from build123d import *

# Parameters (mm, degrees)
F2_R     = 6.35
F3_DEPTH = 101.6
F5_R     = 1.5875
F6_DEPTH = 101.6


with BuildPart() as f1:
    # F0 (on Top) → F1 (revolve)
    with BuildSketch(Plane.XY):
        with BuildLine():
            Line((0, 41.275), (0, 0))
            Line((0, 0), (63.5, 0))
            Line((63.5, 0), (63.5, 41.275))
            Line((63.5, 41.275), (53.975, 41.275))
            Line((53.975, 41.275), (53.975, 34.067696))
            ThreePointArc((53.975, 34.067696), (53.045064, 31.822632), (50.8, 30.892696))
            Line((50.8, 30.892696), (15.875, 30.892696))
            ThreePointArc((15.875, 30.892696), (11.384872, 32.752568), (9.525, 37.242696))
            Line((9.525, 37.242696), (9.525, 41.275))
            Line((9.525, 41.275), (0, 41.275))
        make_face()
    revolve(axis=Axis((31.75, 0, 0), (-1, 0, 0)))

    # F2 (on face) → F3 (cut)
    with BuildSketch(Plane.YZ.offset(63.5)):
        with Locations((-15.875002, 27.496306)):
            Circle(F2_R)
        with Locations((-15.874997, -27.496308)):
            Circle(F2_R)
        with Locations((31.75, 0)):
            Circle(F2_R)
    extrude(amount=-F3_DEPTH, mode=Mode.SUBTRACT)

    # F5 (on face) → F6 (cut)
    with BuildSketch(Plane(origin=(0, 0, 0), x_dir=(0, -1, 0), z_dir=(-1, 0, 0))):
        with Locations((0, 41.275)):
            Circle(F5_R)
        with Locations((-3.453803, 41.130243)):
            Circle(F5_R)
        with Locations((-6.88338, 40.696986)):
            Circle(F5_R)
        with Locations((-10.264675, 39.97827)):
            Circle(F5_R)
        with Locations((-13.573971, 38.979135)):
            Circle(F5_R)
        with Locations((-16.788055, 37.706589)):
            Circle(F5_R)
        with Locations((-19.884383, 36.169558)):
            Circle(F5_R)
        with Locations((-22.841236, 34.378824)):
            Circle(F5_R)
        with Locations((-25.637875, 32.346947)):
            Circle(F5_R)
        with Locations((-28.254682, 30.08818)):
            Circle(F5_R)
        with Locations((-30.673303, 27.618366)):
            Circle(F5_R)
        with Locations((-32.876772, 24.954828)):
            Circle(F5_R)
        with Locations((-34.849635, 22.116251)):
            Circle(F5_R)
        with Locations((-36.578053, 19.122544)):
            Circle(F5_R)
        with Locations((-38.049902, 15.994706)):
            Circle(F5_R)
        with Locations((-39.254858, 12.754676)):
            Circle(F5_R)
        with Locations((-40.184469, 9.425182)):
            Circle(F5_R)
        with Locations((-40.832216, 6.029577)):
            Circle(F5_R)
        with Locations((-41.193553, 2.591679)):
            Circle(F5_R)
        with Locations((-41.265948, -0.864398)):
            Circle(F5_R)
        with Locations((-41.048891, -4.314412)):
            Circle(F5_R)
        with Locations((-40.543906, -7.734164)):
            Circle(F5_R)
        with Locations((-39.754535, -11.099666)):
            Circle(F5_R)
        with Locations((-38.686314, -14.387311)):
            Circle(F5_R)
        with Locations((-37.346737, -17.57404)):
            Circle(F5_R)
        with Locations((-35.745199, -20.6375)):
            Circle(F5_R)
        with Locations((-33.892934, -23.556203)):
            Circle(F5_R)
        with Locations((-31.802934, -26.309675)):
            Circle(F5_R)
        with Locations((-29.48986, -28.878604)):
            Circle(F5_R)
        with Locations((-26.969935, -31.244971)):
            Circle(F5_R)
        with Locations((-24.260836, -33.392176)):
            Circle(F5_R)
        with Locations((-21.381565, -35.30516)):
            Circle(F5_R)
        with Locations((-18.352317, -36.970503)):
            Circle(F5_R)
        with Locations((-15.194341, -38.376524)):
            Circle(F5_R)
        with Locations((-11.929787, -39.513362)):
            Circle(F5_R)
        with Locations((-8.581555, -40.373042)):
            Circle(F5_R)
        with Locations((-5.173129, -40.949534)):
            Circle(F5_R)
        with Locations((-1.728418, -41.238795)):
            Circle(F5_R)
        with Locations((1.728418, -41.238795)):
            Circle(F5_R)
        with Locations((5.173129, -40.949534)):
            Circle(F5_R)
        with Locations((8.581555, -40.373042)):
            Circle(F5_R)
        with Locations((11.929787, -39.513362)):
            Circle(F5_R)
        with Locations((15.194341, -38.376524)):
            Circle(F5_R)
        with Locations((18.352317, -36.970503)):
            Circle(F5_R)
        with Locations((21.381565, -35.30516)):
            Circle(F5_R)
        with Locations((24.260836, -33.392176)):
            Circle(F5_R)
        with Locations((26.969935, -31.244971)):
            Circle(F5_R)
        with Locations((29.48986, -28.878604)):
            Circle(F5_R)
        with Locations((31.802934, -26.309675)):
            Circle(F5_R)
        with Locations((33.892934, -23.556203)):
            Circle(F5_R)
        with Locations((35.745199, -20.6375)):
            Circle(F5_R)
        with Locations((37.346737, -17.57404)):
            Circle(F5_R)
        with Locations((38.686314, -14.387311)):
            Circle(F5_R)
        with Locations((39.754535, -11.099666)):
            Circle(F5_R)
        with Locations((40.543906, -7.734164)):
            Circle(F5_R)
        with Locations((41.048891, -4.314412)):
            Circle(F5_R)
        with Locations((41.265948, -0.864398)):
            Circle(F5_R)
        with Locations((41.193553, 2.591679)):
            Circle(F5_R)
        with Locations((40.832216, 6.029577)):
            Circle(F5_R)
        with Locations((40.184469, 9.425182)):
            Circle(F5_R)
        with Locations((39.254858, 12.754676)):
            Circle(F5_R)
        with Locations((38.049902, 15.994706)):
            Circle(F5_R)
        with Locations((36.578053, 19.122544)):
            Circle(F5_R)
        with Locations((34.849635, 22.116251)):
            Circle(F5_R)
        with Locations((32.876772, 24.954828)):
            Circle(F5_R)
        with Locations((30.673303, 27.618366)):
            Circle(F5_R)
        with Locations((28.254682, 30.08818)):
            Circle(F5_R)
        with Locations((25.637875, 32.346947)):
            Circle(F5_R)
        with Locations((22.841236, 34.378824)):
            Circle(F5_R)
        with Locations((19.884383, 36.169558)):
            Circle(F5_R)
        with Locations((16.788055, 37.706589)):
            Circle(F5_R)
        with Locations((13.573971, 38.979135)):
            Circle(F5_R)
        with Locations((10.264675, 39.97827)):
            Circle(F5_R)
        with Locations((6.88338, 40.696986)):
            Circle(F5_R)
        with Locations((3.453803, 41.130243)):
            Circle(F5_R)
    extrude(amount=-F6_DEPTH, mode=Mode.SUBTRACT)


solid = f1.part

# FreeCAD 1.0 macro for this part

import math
import FreeCAD as App
import Part
import Sketcher

V = App.Vector
Q = App.Units.Quantity

doc = App.newDocument("Part")
body = doc.addObject("PartDesign::Body", "Body")

# Sketch on XY plane
sketch1 = body.newObject("Sketcher::SketchObject", "Sketch")
sketch1.AttachmentSupport = (doc.getObject("XY_Plane"), [""])
sketch1.MapMode = "FlatFace"
sketch1.addGeometry([
    Part.LineSegment(V(0, 41.275, 0), V(0, 0, 0)),  # 0
    Part.LineSegment(V(0, 0, 0), V(63.5, 0, 0)),  # 1
    Part.LineSegment(V(63.5, 0, 0), V(63.5, 41.275, 0)),  # 2
    Part.LineSegment(V(63.5, 41.275, 0), V(53.975, 41.275, 0)),  # 3
    Part.LineSegment(V(53.975, 41.275, 0), V(53.975, 34.067696, 0)),  # 4
    Part.ArcOfCircle(Part.Circle(V(50.8, 34.067696, 0), V(0, 0, 1), 3.175), math.radians(-89.999998), math.radians(-0.000002)),  # 5
    Part.LineSegment(V(50.8, 30.892696, 0), V(15.875, 30.892696, 0)),  # 6
    Part.ArcOfCircle(Part.Circle(V(15.875, 37.242696, 0), V(0, 0, 1), 6.35), math.radians(-179.999998), math.radians(-90.000002)),  # 7
    Part.LineSegment(V(9.525, 37.242696, 0), V(9.525, 41.275, 0)),  # 8
    Part.LineSegment(V(9.525, 41.275, 0), V(0, 41.275, 0)),  # 9
], False)
sketch1.addConstraint([
    Sketcher.Constraint("Coincident", 0, 2, 1, 1),
    Sketcher.Constraint("Coincident", 1, 2, 2, 1),
    Sketcher.Constraint("Coincident", 2, 2, 3, 1),
    Sketcher.Constraint("Coincident", 3, 2, 4, 1),
    Sketcher.Constraint("Tangent", 4, 2, 5, 2),
    Sketcher.Constraint("Tangent", 5, 1, 6, 1),
    Sketcher.Constraint("Tangent", 6, 2, 7, 2),
    Sketcher.Constraint("Tangent", 7, 1, 8, 1),
    Sketcher.Constraint("Coincident", 8, 2, 9, 1),
    Sketcher.Constraint("Coincident", 9, 2, 0, 1),
    Sketcher.Constraint("Vertical", 0),
    Sketcher.Constraint("Horizontal", 1),
    Sketcher.Constraint("Vertical", 2),
    Sketcher.Constraint("Horizontal", 3),
    Sketcher.Constraint("Vertical", 4),
    Sketcher.Constraint("Horizontal", 6),
    Sketcher.Constraint("Vertical", 8),
    Sketcher.Constraint("Horizontal", 9),
    Sketcher.Constraint("Coincident", 0, 2, -1, 1),
    Sketcher.Constraint("Horizontal", 3, 2, 8, 2),
    Sketcher.Constraint("Equal", 3, 9),
    Sketcher.Constraint("Radius", 7, Q("0.25 in")),
    Sketcher.Constraint("DistanceX", 1, 1, 1, 2, Q("2.5 in")),
    Sketcher.Constraint("DistanceX", -1, 1, 5, 3, Q("2 in")),
    Sketcher.Constraint("Radius", 5, Q("0.125 in")),
    Sketcher.Constraint("DistanceY", 0, 2, 0, 1, Q("1.625 in")),
    Sketcher.Constraint("DistanceY", 4, 2, 4, 1, 7.207304),
])
revolution = body.newObject("PartDesign::Revolution", "Revolution")
revolution.Profile = sketch1
revolution.ReferenceAxis = (sketch1, ["H_Axis"])
revolution.Angle = 360

# Sketch on YZ plane
sketch2 = body.newObject("Sketcher::SketchObject", "Sketch001")
sketch2.AttachmentSupport = (doc.getObject("YZ_Plane"), [""])
sketch2.MapMode = "FlatFace"
sketch2.AttachmentOffset = App.Placement(V(0, 0, 2.5 * 25.4), App.Rotation())
sketch2.addGeometry([
    Part.Circle(V(-15.875002, 27.496306, 0), V(0, 0, 1), 6.35),
    Part.Circle(V(-15.874997, -27.496308, 0), V(0, 0, 1), 6.35),
    Part.Circle(V(31.75, 0, 0), V(0, 0, 1), 6.35),
], False)
sketch2.addConstraint([
    Sketcher.Constraint("Equal", 0, 1),
    Sketcher.Constraint("Equal", 1, 2),
    Sketcher.Constraint("Symmetric", 0, 3, 1, 3, -1),
    Sketcher.Constraint("PointOnObject", 2, 3, -1),
    Sketcher.Constraint("Diameter", 0, Q("0.5 in")),
    Sketcher.Constraint("DistanceX", -1, 1, 2, 3, Q("1.25 in")),
    Sketcher.Constraint("DistanceX", 0, 3, -1, 1, Q("0.6250001 in")),
    Sketcher.Constraint("DistanceY", -1, 1, 0, 3, 27.496306),
])
pocket1 = body.newObject("PartDesign::Pocket", "Pocket")
pocket1.Profile = sketch2
pocket1.Length = Q("4 in")

# Sketch on YZ plane
sketch3 = body.newObject("Sketcher::SketchObject", "Sketch002")
sketch3.AttachmentSupport = (doc.getObject("YZ_Plane"), [""])
sketch3.MapMode = "FlatFace"
sketch3.addGeometry([
    Part.Circle(V(0, 41.275, 0), V(0, 0, 1), 1.5875),  # 0
    Part.Circle(V(3.453803, 41.130243, 0), V(0, 0, 1), 1.5875),  # 1
    Part.Circle(V(6.88338, 40.696986, 0), V(0, 0, 1), 1.5875),  # 2
    Part.Circle(V(10.264675, 39.97827, 0), V(0, 0, 1), 1.5875),  # 3
    Part.Circle(V(13.573971, 38.979135, 0), V(0, 0, 1), 1.5875),  # 4
    Part.Circle(V(16.788055, 37.706589, 0), V(0, 0, 1), 1.5875),  # 5
    Part.Circle(V(19.884383, 36.169558, 0), V(0, 0, 1), 1.5875),  # 6
    Part.Circle(V(22.841236, 34.378824, 0), V(0, 0, 1), 1.5875),  # 7
    Part.Circle(V(25.637875, 32.346947, 0), V(0, 0, 1), 1.5875),  # 8
    Part.Circle(V(28.254682, 30.08818, 0), V(0, 0, 1), 1.5875),  # 9
    Part.Circle(V(30.673303, 27.618366, 0), V(0, 0, 1), 1.5875),  # 10
    Part.Circle(V(32.876772, 24.954828, 0), V(0, 0, 1), 1.5875),  # 11
    Part.Circle(V(34.849635, 22.116251, 0), V(0, 0, 1), 1.5875),  # 12
    Part.Circle(V(36.578053, 19.122544, 0), V(0, 0, 1), 1.5875),  # 13
    Part.Circle(V(38.049902, 15.994706, 0), V(0, 0, 1), 1.5875),  # 14
    Part.Circle(V(39.254858, 12.754676, 0), V(0, 0, 1), 1.5875),  # 15
    Part.Circle(V(40.184469, 9.425182, 0), V(0, 0, 1), 1.5875),  # 16
    Part.Circle(V(40.832216, 6.029577, 0), V(0, 0, 1), 1.5875),  # 17
    Part.Circle(V(41.193553, 2.591679, 0), V(0, 0, 1), 1.5875),  # 18
    Part.Circle(V(41.265948, -0.864398, 0), V(0, 0, 1), 1.5875),  # 19
    Part.Circle(V(41.048891, -4.314412, 0), V(0, 0, 1), 1.5875),  # 20
    Part.Circle(V(40.543906, -7.734164, 0), V(0, 0, 1), 1.5875),  # 21
    Part.Circle(V(39.754535, -11.099666, 0), V(0, 0, 1), 1.5875),  # 22
    Part.Circle(V(38.686314, -14.387311, 0), V(0, 0, 1), 1.5875),  # 23
    Part.Circle(V(37.346737, -17.57404, 0), V(0, 0, 1), 1.5875),  # 24
    Part.Circle(V(35.745199, -20.6375, 0), V(0, 0, 1), 1.5875),  # 25
    Part.Circle(V(33.892934, -23.556203, 0), V(0, 0, 1), 1.5875),  # 26
    Part.Circle(V(31.802934, -26.309675, 0), V(0, 0, 1), 1.5875),  # 27
    Part.Circle(V(29.48986, -28.878604, 0), V(0, 0, 1), 1.5875),  # 28
    Part.Circle(V(26.969935, -31.244971, 0), V(0, 0, 1), 1.5875),  # 29
    Part.Circle(V(24.260836, -33.392176, 0), V(0, 0, 1), 1.5875),  # 30
    Part.Circle(V(21.381565, -35.30516, 0), V(0, 0, 1), 1.5875),  # 31
    Part.Circle(V(18.352317, -36.970503, 0), V(0, 0, 1), 1.5875),  # 32
    Part.Circle(V(15.194341, -38.376524, 0), V(0, 0, 1), 1.5875),  # 33
    Part.Circle(V(11.929787, -39.513362, 0), V(0, 0, 1), 1.5875),  # 34
    Part.Circle(V(8.581555, -40.373042, 0), V(0, 0, 1), 1.5875),  # 35
    Part.Circle(V(5.173129, -40.949534, 0), V(0, 0, 1), 1.5875),  # 36
    Part.Circle(V(1.728418, -41.238795, 0), V(0, 0, 1), 1.5875),  # 37
    Part.Circle(V(-1.728418, -41.238795, 0), V(0, 0, 1), 1.5875),  # 38
    Part.Circle(V(-5.173129, -40.949534, 0), V(0, 0, 1), 1.5875),  # 39
    Part.Circle(V(-8.581555, -40.373042, 0), V(0, 0, 1), 1.5875),  # 40
    Part.Circle(V(-11.929787, -39.513362, 0), V(0, 0, 1), 1.5875),  # 41
    Part.Circle(V(-15.194341, -38.376524, 0), V(0, 0, 1), 1.5875),  # 42
    Part.Circle(V(-18.352317, -36.970503, 0), V(0, 0, 1), 1.5875),  # 43
    Part.Circle(V(-21.381565, -35.30516, 0), V(0, 0, 1), 1.5875),  # 44
    Part.Circle(V(-24.260836, -33.392176, 0), V(0, 0, 1), 1.5875),  # 45
    Part.Circle(V(-26.969935, -31.244971, 0), V(0, 0, 1), 1.5875),  # 46
    Part.Circle(V(-29.48986, -28.878604, 0), V(0, 0, 1), 1.5875),  # 47
    Part.Circle(V(-31.802934, -26.309675, 0), V(0, 0, 1), 1.5875),  # 48
    Part.Circle(V(-33.892934, -23.556203, 0), V(0, 0, 1), 1.5875),  # 49
    Part.Circle(V(-35.745199, -20.6375, 0), V(0, 0, 1), 1.5875),  # 50
    Part.Circle(V(-37.346737, -17.57404, 0), V(0, 0, 1), 1.5875),  # 51
    Part.Circle(V(-38.686314, -14.387311, 0), V(0, 0, 1), 1.5875),  # 52
    Part.Circle(V(-39.754535, -11.099666, 0), V(0, 0, 1), 1.5875),  # 53
    Part.Circle(V(-40.543906, -7.734164, 0), V(0, 0, 1), 1.5875),  # 54
    Part.Circle(V(-41.048891, -4.314412, 0), V(0, 0, 1), 1.5875),  # 55
    Part.Circle(V(-41.265948, -0.864398, 0), V(0, 0, 1), 1.5875),  # 56
    Part.Circle(V(-41.193553, 2.591679, 0), V(0, 0, 1), 1.5875),  # 57
    Part.Circle(V(-40.832216, 6.029577, 0), V(0, 0, 1), 1.5875),  # 58
    Part.Circle(V(-40.184469, 9.425182, 0), V(0, 0, 1), 1.5875),  # 59
    Part.Circle(V(-39.254858, 12.754676, 0), V(0, 0, 1), 1.5875),  # 60
    Part.Circle(V(-38.049902, 15.994706, 0), V(0, 0, 1), 1.5875),  # 61
    Part.Circle(V(-36.578053, 19.122544, 0), V(0, 0, 1), 1.5875),  # 62
    Part.Circle(V(-34.849635, 22.116251, 0), V(0, 0, 1), 1.5875),  # 63
    Part.Circle(V(-32.876772, 24.954828, 0), V(0, 0, 1), 1.5875),  # 64
    Part.Circle(V(-30.673303, 27.618366, 0), V(0, 0, 1), 1.5875),  # 65
    Part.Circle(V(-28.254682, 30.08818, 0), V(0, 0, 1), 1.5875),  # 66
    Part.Circle(V(-25.637875, 32.346947, 0), V(0, 0, 1), 1.5875),  # 67
    Part.Circle(V(-22.841236, 34.378824, 0), V(0, 0, 1), 1.5875),  # 68
    Part.Circle(V(-19.884383, 36.169558, 0), V(0, 0, 1), 1.5875),  # 69
    Part.Circle(V(-16.788055, 37.706589, 0), V(0, 0, 1), 1.5875),  # 70
    Part.Circle(V(-13.573971, 38.979135, 0), V(0, 0, 1), 1.5875),  # 71
    Part.Circle(V(-10.264675, 39.97827, 0), V(0, 0, 1), 1.5875),  # 72
    Part.Circle(V(-6.88338, 40.696986, 0), V(0, 0, 1), 1.5875),  # 73
    Part.Circle(V(-3.453803, 41.130243, 0), V(0, 0, 1), 1.5875),  # 74
], False)
sketch3.addConstraint([
    Sketcher.Constraint("Equal", 0, 1),
    Sketcher.Constraint("Equal", 1, 2),
    Sketcher.Constraint("Equal", 2, 3),
    Sketcher.Constraint("Equal", 3, 4),
    Sketcher.Constraint("Equal", 4, 5),
    Sketcher.Constraint("Equal", 5, 6),
    Sketcher.Constraint("Equal", 6, 7),
    Sketcher.Constraint("Equal", 7, 8),
    Sketcher.Constraint("Equal", 8, 9),
    Sketcher.Constraint("Equal", 9, 10),
    Sketcher.Constraint("Equal", 10, 11),
    Sketcher.Constraint("Equal", 11, 12),
    Sketcher.Constraint("Equal", 12, 13),
    Sketcher.Constraint("Equal", 13, 14),
    Sketcher.Constraint("Equal", 14, 15),
    Sketcher.Constraint("Equal", 15, 16),
    Sketcher.Constraint("Equal", 16, 17),
    Sketcher.Constraint("Equal", 17, 18),
    Sketcher.Constraint("Equal", 18, 19),
    Sketcher.Constraint("Equal", 19, 20),
    Sketcher.Constraint("Equal", 20, 21),
    Sketcher.Constraint("Equal", 21, 22),
    Sketcher.Constraint("Equal", 22, 23),
    Sketcher.Constraint("Equal", 23, 24),
    Sketcher.Constraint("Equal", 24, 25),
    Sketcher.Constraint("Equal", 25, 26),
    Sketcher.Constraint("Equal", 26, 27),
    Sketcher.Constraint("Equal", 27, 28),
    Sketcher.Constraint("Equal", 28, 29),
    Sketcher.Constraint("Equal", 29, 30),
    Sketcher.Constraint("Equal", 30, 31),
    Sketcher.Constraint("Equal", 31, 32),
    Sketcher.Constraint("Equal", 32, 33),
    Sketcher.Constraint("Equal", 33, 34),
    Sketcher.Constraint("Equal", 34, 35),
    Sketcher.Constraint("Equal", 35, 36),
    Sketcher.Constraint("Equal", 36, 37),
    Sketcher.Constraint("Equal", 37, 38),
    Sketcher.Constraint("Equal", 38, 39),
    Sketcher.Constraint("Equal", 39, 40),
    Sketcher.Constraint("Equal", 40, 41),
    Sketcher.Constraint("Equal", 41, 42),
    Sketcher.Constraint("Equal", 42, 43),
    Sketcher.Constraint("Equal", 43, 44),
    Sketcher.Constraint("Equal", 44, 45),
    Sketcher.Constraint("Equal", 45, 46),
    Sketcher.Constraint("Equal", 46, 47),
    Sketcher.Constraint("Equal", 47, 48),
    Sketcher.Constraint("Equal", 48, 49),
    Sketcher.Constraint("Equal", 49, 50),
    Sketcher.Constraint("Equal", 50, 51),
    Sketcher.Constraint("Equal", 51, 52),
    Sketcher.Constraint("Equal", 52, 53),
    Sketcher.Constraint("Equal", 53, 54),
    Sketcher.Constraint("Equal", 54, 55),
    Sketcher.Constraint("Equal", 55, 56),
    Sketcher.Constraint("Equal", 56, 57),
    Sketcher.Constraint("Equal", 57, 58),
    Sketcher.Constraint("Equal", 58, 59),
    Sketcher.Constraint("Equal", 59, 60),
    Sketcher.Constraint("Equal", 60, 61),
    Sketcher.Constraint("Equal", 61, 62),
    Sketcher.Constraint("Equal", 62, 63),
    Sketcher.Constraint("Equal", 63, 64),
    Sketcher.Constraint("Equal", 64, 65),
    Sketcher.Constraint("Equal", 65, 66),
    Sketcher.Constraint("Equal", 66, 67),
    Sketcher.Constraint("Equal", 67, 68),
    Sketcher.Constraint("Equal", 68, 69),
    Sketcher.Constraint("Equal", 69, 70),
    Sketcher.Constraint("Equal", 70, 71),
    Sketcher.Constraint("Equal", 71, 72),
    Sketcher.Constraint("Equal", 72, 73),
    Sketcher.Constraint("Equal", 73, 74),
    Sketcher.Constraint("Symmetric", 37, 3, 38, 3, -2),
    Sketcher.Constraint("Symmetric", 36, 3, 39, 3, -2),
    Sketcher.Constraint("Symmetric", 35, 3, 40, 3, -2),
    Sketcher.Constraint("Symmetric", 34, 3, 41, 3, -2),
    Sketcher.Constraint("Symmetric", 33, 3, 42, 3, -2),
    Sketcher.Constraint("Symmetric", 32, 3, 43, 3, -2),
    Sketcher.Constraint("Symmetric", 31, 3, 44, 3, -2),
    Sketcher.Constraint("Symmetric", 30, 3, 45, 3, -2),
    Sketcher.Constraint("Symmetric", 29, 3, 46, 3, -2),
    Sketcher.Constraint("Symmetric", 28, 3, 47, 3, -2),
    Sketcher.Constraint("Symmetric", 27, 3, 48, 3, -2),
    Sketcher.Constraint("Symmetric", 26, 3, 49, 3, -2),
    Sketcher.Constraint("Symmetric", 25, 3, 50, 3, -2),
    Sketcher.Constraint("Symmetric", 24, 3, 51, 3, -2),
    Sketcher.Constraint("Symmetric", 23, 3, 52, 3, -2),
    Sketcher.Constraint("Symmetric", 22, 3, 53, 3, -2),
    Sketcher.Constraint("Symmetric", 21, 3, 54, 3, -2),
    Sketcher.Constraint("Symmetric", 20, 3, 55, 3, -2),
    Sketcher.Constraint("Symmetric", 19, 3, 56, 3, -2),
    Sketcher.Constraint("Symmetric", 18, 3, 57, 3, -2),
    Sketcher.Constraint("Symmetric", 17, 3, 58, 3, -2),
    Sketcher.Constraint("Symmetric", 16, 3, 59, 3, -2),
    Sketcher.Constraint("Symmetric", 15, 3, 60, 3, -2),
    Sketcher.Constraint("Symmetric", 14, 3, 61, 3, -2),
    Sketcher.Constraint("Symmetric", 13, 3, 62, 3, -2),
    Sketcher.Constraint("Symmetric", 12, 3, 63, 3, -2),
    Sketcher.Constraint("Symmetric", 11, 3, 64, 3, -2),
    Sketcher.Constraint("Symmetric", 10, 3, 65, 3, -2),
    Sketcher.Constraint("Symmetric", 9, 3, 66, 3, -2),
    Sketcher.Constraint("Symmetric", 8, 3, 67, 3, -2),
    Sketcher.Constraint("Symmetric", 7, 3, 68, 3, -2),
    Sketcher.Constraint("Symmetric", 6, 3, 69, 3, -2),
    Sketcher.Constraint("Symmetric", 5, 3, 70, 3, -2),
    Sketcher.Constraint("Symmetric", 4, 3, 71, 3, -2),
    Sketcher.Constraint("Symmetric", 3, 3, 72, 3, -2),
    Sketcher.Constraint("Symmetric", 2, 3, 73, 3, -2),
    Sketcher.Constraint("Symmetric", 1, 3, 74, 3, -2),
    Sketcher.Constraint("PointOnObject", 0, 3, -2),
    Sketcher.Constraint("Diameter", 0, Q("0.125 in")),
    Sketcher.Constraint("DistanceY", -1, 1, 0, 3, Q("1.625 in")),
    Sketcher.Constraint("DistanceY", 25, 3, -1, 1, Q("0.8125 in")),
    Sketcher.Constraint("DistanceY", 19, 3, -1, 1, 0.864398),
    Sketcher.Constraint("DistanceX", -1, 1, 25, 3, 35.745199),
    Sketcher.Constraint("DistanceX", -1, 1, 2, 3, 6.88338),
    Sketcher.Constraint("DistanceY", -1, 1, 3, 3, 39.97827),
    Sketcher.Constraint("DistanceX", -1, 1, 4, 3, 13.573971),
    Sketcher.Constraint("DistanceY", -1, 1, 5, 3, 37.706589),
    Sketcher.Constraint("DistanceY", -1, 1, 6, 3, 36.169558),
    Sketcher.Constraint("DistanceX", -1, 1, 9, 3, 28.254682),
    Sketcher.Constraint("DistanceY", -1, 1, 9, 3, 30.08818),
    Sketcher.Constraint("DistanceY", -1, 1, 12, 3, 22.116251),
    Sketcher.Constraint("DistanceX", -1, 1, 16, 3, 40.184469),
    Sketcher.Constraint("DistanceY", -1, 1, 18, 3, 2.591679),
    Sketcher.Constraint("DistanceX", -1, 1, 19, 3, 41.265948),
    Sketcher.Constraint("DistanceX", -1, 1, 20, 3, 41.048891),
    Sketcher.Constraint("DistanceY", 23, 3, -1, 1, 14.387311),
    Sketcher.Constraint("DistanceY", 24, 3, -1, 1, 17.57404),
    Sketcher.Constraint("DistanceX", -1, 1, 28, 3, 29.48986),
    Sketcher.Constraint("DistanceY", 29, 3, -1, 1, 31.244971),
    Sketcher.Constraint("DistanceY", 31, 3, -1, 1, 35.30516),
    Sketcher.Constraint("DistanceX", -1, 1, 33, 3, 15.194341),
    Sketcher.Constraint("DistanceY", 35, 3, -1, 1, 40.373042),
    Sketcher.Constraint("DistanceX", -1, 1, 36, 3, 5.173129),
    Sketcher.Constraint("DistanceX", -1, 1, 1, 3, 3.453803),
    Sketcher.Constraint("DistanceY", -1, 1, 1, 3, 41.130243),
    Sketcher.Constraint("DistanceY", -1, 1, 2, 3, 40.696986),
    Sketcher.Constraint("DistanceX", -1, 1, 3, 3, 10.264675),
    Sketcher.Constraint("DistanceY", -1, 1, 4, 3, 38.979135),
    Sketcher.Constraint("DistanceX", -1, 1, 5, 3, 16.788055),
    Sketcher.Constraint("DistanceX", -1, 1, 6, 3, 19.884383),
    Sketcher.Constraint("DistanceX", -1, 1, 7, 3, 22.841236),
    Sketcher.Constraint("DistanceY", -1, 1, 7, 3, 34.378824),
    Sketcher.Constraint("DistanceX", -1, 1, 8, 3, 25.637875),
    Sketcher.Constraint("DistanceY", -1, 1, 8, 3, 32.346947),
    Sketcher.Constraint("DistanceX", -1, 1, 10, 3, 30.673303),
    Sketcher.Constraint("DistanceY", -1, 1, 10, 3, 27.618366),
    Sketcher.Constraint("DistanceX", -1, 1, 11, 3, 32.876772),
    Sketcher.Constraint("DistanceY", -1, 1, 11, 3, 24.954828),
    Sketcher.Constraint("DistanceX", -1, 1, 12, 3, 34.849635),
    Sketcher.Constraint("DistanceX", -1, 1, 13, 3, 36.578053),
    Sketcher.Constraint("DistanceY", -1, 1, 13, 3, 19.122544),
    Sketcher.Constraint("DistanceX", -1, 1, 14, 3, 38.049902),
    Sketcher.Constraint("DistanceY", -1, 1, 14, 3, 15.994706),
    Sketcher.Constraint("DistanceX", -1, 1, 15, 3, 39.254858),
    Sketcher.Constraint("DistanceY", -1, 1, 15, 3, 12.754676),
    Sketcher.Constraint("DistanceY", -1, 1, 16, 3, 9.425182),
    Sketcher.Constraint("DistanceX", -1, 1, 17, 3, 40.832216),
    Sketcher.Constraint("DistanceY", -1, 1, 17, 3, 6.029577),
    Sketcher.Constraint("DistanceX", -1, 1, 18, 3, 41.193553),
    Sketcher.Constraint("DistanceY", 20, 3, -1, 1, 4.314412),
    Sketcher.Constraint("DistanceX", -1, 1, 21, 3, 40.543906),
    Sketcher.Constraint("DistanceY", 21, 3, -1, 1, 7.734164),
    Sketcher.Constraint("DistanceX", -1, 1, 22, 3, 39.754535),
    Sketcher.Constraint("DistanceY", 22, 3, -1, 1, 11.099666),
    Sketcher.Constraint("DistanceX", -1, 1, 23, 3, 38.686314),
    Sketcher.Constraint("DistanceX", -1, 1, 24, 3, 37.346737),
    Sketcher.Constraint("DistanceX", -1, 1, 26, 3, 33.892934),
    Sketcher.Constraint("DistanceY", 26, 3, -1, 1, 23.556203),
    Sketcher.Constraint("DistanceX", -1, 1, 27, 3, 31.802934),
    Sketcher.Constraint("DistanceY", 27, 3, -1, 1, 26.309675),
    Sketcher.Constraint("DistanceY", 28, 3, -1, 1, 28.878604),
    Sketcher.Constraint("DistanceX", -1, 1, 29, 3, 26.969935),
    Sketcher.Constraint("DistanceX", -1, 1, 30, 3, 24.260836),
    Sketcher.Constraint("DistanceY", 30, 3, -1, 1, 33.392176),
    Sketcher.Constraint("DistanceX", -1, 1, 31, 3, 21.381565),
    Sketcher.Constraint("DistanceX", -1, 1, 32, 3, 18.352317),
    Sketcher.Constraint("DistanceY", 32, 3, -1, 1, 36.970503),
    Sketcher.Constraint("DistanceY", 33, 3, -1, 1, 38.376524),
    Sketcher.Constraint("DistanceX", -1, 1, 34, 3, 11.929787),
    Sketcher.Constraint("DistanceY", 34, 3, -1, 1, 39.513362),
    Sketcher.Constraint("DistanceX", -1, 1, 35, 3, 8.581555),
    Sketcher.Constraint("DistanceY", 36, 3, -1, 1, 40.949534),
    Sketcher.Constraint("DistanceX", -1, 1, 37, 3, 1.728418),
    Sketcher.Constraint("DistanceY", 37, 3, -1, 1, 41.238795),
])
pocket2 = body.newObject("PartDesign::Pocket", "Pocket001")
pocket2.Profile = sketch3
pocket2.Length = Q("4 in")
pocket2.Reversed = True

doc.recompute()
